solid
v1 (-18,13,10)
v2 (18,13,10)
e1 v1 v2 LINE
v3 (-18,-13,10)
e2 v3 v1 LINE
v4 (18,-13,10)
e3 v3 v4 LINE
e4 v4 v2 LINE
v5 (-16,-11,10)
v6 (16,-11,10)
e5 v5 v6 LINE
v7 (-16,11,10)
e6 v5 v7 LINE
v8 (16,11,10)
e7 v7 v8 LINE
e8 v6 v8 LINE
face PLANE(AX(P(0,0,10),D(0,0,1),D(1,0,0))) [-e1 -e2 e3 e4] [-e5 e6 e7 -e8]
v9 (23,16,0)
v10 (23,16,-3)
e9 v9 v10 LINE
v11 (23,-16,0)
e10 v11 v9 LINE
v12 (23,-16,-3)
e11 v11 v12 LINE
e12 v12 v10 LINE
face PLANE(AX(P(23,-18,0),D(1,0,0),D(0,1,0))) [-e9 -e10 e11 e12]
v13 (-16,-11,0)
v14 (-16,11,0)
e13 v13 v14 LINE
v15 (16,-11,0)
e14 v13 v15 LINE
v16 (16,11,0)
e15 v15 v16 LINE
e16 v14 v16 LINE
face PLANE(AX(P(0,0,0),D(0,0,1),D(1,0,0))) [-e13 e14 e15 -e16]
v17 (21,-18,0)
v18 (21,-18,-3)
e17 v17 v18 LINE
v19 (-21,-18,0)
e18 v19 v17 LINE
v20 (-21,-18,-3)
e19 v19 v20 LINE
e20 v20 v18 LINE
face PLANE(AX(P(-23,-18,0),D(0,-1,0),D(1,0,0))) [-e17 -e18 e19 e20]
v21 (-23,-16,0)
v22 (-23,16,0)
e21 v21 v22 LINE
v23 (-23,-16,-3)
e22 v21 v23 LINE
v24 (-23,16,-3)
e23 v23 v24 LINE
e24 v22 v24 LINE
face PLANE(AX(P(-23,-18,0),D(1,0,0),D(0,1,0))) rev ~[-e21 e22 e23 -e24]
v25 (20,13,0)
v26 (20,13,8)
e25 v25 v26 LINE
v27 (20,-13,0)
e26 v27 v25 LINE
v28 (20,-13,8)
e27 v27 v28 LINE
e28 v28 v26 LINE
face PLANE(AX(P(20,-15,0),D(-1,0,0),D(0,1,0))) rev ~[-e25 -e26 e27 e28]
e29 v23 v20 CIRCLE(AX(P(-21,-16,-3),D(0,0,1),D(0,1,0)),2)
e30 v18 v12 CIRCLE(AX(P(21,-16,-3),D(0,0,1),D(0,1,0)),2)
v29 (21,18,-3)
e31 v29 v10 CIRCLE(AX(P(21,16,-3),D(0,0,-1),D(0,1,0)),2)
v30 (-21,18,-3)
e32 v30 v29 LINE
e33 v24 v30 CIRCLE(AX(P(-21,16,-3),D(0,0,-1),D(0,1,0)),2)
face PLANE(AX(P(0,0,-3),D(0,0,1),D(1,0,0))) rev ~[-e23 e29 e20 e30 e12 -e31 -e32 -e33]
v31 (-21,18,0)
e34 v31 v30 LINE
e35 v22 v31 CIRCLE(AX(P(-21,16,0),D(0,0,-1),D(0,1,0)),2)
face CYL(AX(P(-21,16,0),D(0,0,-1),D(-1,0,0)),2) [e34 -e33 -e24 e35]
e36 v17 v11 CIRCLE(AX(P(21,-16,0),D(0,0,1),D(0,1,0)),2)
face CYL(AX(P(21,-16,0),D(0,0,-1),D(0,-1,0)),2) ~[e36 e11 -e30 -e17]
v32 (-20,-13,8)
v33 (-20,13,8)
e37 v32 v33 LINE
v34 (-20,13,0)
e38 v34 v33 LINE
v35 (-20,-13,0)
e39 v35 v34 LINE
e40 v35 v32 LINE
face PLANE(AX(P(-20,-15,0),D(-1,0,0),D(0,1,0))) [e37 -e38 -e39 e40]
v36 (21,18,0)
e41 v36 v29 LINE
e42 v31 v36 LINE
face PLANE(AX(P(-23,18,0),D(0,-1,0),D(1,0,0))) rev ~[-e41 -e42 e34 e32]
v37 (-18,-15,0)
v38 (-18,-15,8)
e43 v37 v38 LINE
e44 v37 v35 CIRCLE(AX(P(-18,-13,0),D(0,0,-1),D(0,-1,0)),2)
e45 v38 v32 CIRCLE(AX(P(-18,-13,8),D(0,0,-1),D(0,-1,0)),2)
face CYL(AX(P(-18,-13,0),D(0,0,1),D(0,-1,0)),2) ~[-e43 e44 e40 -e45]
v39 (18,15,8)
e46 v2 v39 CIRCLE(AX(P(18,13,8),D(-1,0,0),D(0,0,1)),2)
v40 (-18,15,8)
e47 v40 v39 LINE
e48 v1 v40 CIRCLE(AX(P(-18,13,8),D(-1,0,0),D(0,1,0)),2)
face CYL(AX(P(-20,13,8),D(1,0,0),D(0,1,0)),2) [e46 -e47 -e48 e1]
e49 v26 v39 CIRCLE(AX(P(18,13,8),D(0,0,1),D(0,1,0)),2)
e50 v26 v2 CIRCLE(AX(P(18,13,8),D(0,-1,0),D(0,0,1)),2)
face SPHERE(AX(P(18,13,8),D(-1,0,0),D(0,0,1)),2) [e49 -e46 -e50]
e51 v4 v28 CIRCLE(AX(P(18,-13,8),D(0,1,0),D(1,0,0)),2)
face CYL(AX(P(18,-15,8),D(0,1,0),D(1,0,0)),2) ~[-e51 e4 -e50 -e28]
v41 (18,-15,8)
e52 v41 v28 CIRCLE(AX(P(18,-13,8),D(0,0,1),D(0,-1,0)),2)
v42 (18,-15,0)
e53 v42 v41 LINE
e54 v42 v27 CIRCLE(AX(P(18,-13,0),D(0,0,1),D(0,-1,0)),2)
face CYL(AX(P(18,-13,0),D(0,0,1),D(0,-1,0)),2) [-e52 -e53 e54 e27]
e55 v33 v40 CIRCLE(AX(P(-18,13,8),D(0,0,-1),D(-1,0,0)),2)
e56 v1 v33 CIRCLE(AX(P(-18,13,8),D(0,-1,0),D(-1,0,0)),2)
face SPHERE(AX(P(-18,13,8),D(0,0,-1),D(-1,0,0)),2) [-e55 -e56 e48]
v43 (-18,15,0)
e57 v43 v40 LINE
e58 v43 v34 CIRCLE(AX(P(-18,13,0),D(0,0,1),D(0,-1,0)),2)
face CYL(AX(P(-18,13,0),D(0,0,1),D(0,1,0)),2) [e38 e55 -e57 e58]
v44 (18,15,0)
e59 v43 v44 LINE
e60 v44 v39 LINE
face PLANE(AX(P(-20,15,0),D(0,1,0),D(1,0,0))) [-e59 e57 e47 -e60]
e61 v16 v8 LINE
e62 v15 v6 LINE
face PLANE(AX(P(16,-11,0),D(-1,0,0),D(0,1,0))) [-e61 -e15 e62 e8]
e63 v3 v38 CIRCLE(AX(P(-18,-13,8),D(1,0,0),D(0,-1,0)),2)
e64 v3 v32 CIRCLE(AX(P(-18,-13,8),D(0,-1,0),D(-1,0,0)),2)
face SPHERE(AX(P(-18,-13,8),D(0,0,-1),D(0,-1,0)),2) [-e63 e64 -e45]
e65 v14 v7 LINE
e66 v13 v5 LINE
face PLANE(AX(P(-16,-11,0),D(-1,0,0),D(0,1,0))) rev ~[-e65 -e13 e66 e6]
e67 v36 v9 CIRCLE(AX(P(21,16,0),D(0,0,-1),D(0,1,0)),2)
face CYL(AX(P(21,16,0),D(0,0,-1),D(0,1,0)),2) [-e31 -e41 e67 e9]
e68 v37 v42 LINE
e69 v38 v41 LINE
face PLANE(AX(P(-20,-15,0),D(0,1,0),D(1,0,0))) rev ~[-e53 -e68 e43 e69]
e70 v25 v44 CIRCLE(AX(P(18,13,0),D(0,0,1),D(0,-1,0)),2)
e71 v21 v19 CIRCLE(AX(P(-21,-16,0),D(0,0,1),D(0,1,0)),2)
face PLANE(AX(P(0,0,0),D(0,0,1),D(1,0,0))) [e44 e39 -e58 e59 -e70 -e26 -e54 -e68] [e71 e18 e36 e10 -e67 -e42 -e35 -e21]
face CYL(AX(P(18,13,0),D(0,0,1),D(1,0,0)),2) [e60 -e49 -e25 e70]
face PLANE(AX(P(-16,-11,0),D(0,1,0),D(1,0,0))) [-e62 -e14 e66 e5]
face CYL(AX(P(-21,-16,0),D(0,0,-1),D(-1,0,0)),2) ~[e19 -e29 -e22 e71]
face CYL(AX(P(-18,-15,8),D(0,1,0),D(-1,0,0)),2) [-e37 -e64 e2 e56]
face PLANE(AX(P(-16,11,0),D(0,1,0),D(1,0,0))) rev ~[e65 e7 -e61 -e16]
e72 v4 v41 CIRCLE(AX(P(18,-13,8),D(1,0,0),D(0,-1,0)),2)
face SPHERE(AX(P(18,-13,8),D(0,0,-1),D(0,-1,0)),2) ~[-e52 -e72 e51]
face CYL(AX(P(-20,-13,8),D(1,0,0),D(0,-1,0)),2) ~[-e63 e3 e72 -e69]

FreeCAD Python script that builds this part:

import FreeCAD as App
import Part
import Sketcher

V = App.Vector
Q = App.Units.Quantity


def edges_at(feature, points):
    """Names of the edges that pass closest to the given points."""
    edges = feature.Shape.Edges
    near = lambda p: min(range(len(edges)), key=lambda i: edges[i].distToShape(Part.Vertex(*p))[0])
    return sorted({f"Edge{near(p) + 1}" for p in points})


def add_polygon(sketch, points):
    """Adds a closed chain of lines whose ends are joined by coincident constraints."""
    first, n = sketch.GeometryCount, len(points)
    for a, b in zip(points, points[1:] + points[:1]):
        sketch.addGeometry(Part.LineSegment(App.Vector(*a, 0), App.Vector(*b, 0)), False)
    for i in range(n):
        sketch.addConstraint(Sketcher.Constraint("Coincident", first + i, 2, first + (i + 1) % n, 1))

doc = App.newDocument("Part")
body = doc.addObject("PartDesign::Body", "Body")

# Sketch on XY plane
sketch1 = body.newObject("Sketcher::SketchObject", "Sketch")
sketch1.AttachmentSupport = (doc.getObject("XY_Plane"), [""])
sketch1.MapMode = "FlatFace"
add_polygon(sketch1, [(-20, 15), (-20, -15), (20, -15), (20, 15)])  # lines 0-3
add_polygon(sketch1, [(16, -11), (-16, -11), (-16, 11), (16, 11)])  # lines 4-7
sketch1.addConstraint([
    Sketcher.Constraint("Vertical", 0),
    Sketcher.Constraint("Horizontal", 1),
    Sketcher.Constraint("Vertical", 2),
    Sketcher.Constraint("Horizontal", 3),
    Sketcher.Constraint("Horizontal", 4),
    Sketcher.Constraint("Vertical", 5),
    Sketcher.Constraint("Horizontal", 6),
    Sketcher.Constraint("Vertical", 7),
    Sketcher.Constraint("Symmetric", 0, 2, 2, 2, -1, 1),
    Sketcher.Constraint("Symmetric", 4, 2, 6, 2, -1, 1),
    Sketcher.Constraint("DistanceX", 1, 1, 1, 2, Q("40 mm")),
    Sketcher.Constraint("DistanceX", 4, 2, 4, 1, Q("32 mm")),
    Sketcher.Constraint("DistanceY", 0, 2, 0, 1, Q("30 mm")),
    Sketcher.Constraint("DistanceY", 5, 1, 5, 2, Q("22 mm")),
])
pad1 = body.newObject("PartDesign::Pad", "Pad")
pad1.Profile = sketch1
pad1.Length = 10

# Sketch on XY plane
sketch2 = body.newObject("Sketcher::SketchObject", "Sketch001")
sketch2.AttachmentSupport = (doc.getObject("XY_Plane"), [""])
sketch2.MapMode = "FlatFace"
add_polygon(sketch2, [(-23, 18), (-23, -18), (23, -18), (23, 18)])  # lines 0-3
sketch2.addConstraint([
    Sketcher.Constraint("Vertical", 0),
    Sketcher.Constraint("Horizontal", 1),
    Sketcher.Constraint("Vertical", 2),
    Sketcher.Constraint("Horizontal", 3),
    Sketcher.Constraint("Symmetric", 0, 2, 2, 2, -1, 1),
    Sketcher.Constraint("DistanceX", 1, 1, 1, 2, Q("46 mm")),
    Sketcher.Constraint("DistanceY", 0, 2, 0, 1, Q("36 mm")),
])
pad2 = body.newObject("PartDesign::Pad", "Pad001")
pad2.Profile = sketch2
pad2.Length = 3
pad2.Reversed = True
doc.recompute()

fillet = body.newObject("PartDesign::Fillet", "Fillet")
fillet.Base = (pad2, edges_at(pad2, [
    (-20, -15, 5),
    (-20, 15, 5),
    (20, -15, 5),
    (0, -15, 10),
    (-20, 0, 10),
    (0, 15, 10),
    (20, 0, 10),
    (20, 15, 5),
    (23, 18, -1.5),
    (23, -18, -1.5),
    (-23, -18, -1.5),
    (-23, 18, -1.5),
]))
fillet.Radius = 2

doc.recompute()
